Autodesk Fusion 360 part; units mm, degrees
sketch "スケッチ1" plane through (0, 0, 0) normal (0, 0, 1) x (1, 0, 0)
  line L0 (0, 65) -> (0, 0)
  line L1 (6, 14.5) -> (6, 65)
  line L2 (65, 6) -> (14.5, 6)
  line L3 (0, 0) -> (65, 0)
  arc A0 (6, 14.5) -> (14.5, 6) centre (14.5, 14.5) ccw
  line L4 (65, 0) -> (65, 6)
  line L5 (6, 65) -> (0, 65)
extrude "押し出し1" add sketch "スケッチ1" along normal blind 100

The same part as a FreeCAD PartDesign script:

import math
import FreeCAD as App
import Part
import Sketcher
from FreeCAD import Vector
Q = App.Units.Quantity

doc = App.newDocument("Part")
body = doc.addObject("PartDesign::Body", "Body")

sketch1 = body.newObject("Sketcher::SketchObject", "Sketch")
sketch1.AttachmentSupport = (doc.getObject("XY_Plane"), [""])
sketch1.MapMode = "FlatFace"
sketch1.addGeometry([
    Part.LineSegment(Vector(6, 65, 0), Vector(0, 65, 0)),
    Part.LineSegment(Vector(0, 65, 0), Vector(0, 0, 0)),
    Part.LineSegment(Vector(0, 0, 0), Vector(65, 0, 0)),
    Part.LineSegment(Vector(65, 0, 0), Vector(65, 6, 0)),
    Part.LineSegment(Vector(65, 6, 0), Vector(14.5, 6, 0)),
    Part.ArcOfCircle(Part.Circle(Vector(14.5, 14.5, 0), Vector(0, 0, 1), 8.5), math.radians(180), math.radians(270)),
    Part.LineSegment(Vector(6, 14.5, 0), Vector(6, 65, 0)),
], False)
sketch1.addConstraint([
    Sketcher.Constraint("Coincident", 0, 2, 1, 1),
    Sketcher.Constraint("Coincident", 1, 2, 2, 1),
    Sketcher.Constraint("Coincident", 2, 2, 3, 1),
    Sketcher.Constraint("Coincident", 3, 2, 4, 1),
    Sketcher.Constraint("Tangent", 4, 2, 5, 2),
    Sketcher.Constraint("Tangent", 5, 1, 6, 1),
    Sketcher.Constraint("Coincident", 6, 2, 0, 1),
    Sketcher.Constraint("Horizontal", 0),
    Sketcher.Constraint("Vertical", 1),
    Sketcher.Constraint("Horizontal", 2),
    Sketcher.Constraint("Vertical", 3),
    Sketcher.Constraint("Horizontal", 4),
    Sketcher.Constraint("Vertical", 6),
    Sketcher.Constraint("Coincident", 1, 2, -1, 1),
    Sketcher.Constraint("Equal", 2, 1),
    Sketcher.Constraint("Equal", 0, 3),
    Sketcher.Constraint("Radius", 5, Q("8.5 mm")),
    Sketcher.Constraint("DistanceX", 0, 2, 0, 1, Q("6 mm")),
    Sketcher.Constraint("DistanceX", 2, 1, 2, 2, Q("65 mm")),
])
pad1 = body.newObject("PartDesign::Pad", "Pad")
pad1.Profile = sketch1
pad1.Length = 100

doc.recompute()
